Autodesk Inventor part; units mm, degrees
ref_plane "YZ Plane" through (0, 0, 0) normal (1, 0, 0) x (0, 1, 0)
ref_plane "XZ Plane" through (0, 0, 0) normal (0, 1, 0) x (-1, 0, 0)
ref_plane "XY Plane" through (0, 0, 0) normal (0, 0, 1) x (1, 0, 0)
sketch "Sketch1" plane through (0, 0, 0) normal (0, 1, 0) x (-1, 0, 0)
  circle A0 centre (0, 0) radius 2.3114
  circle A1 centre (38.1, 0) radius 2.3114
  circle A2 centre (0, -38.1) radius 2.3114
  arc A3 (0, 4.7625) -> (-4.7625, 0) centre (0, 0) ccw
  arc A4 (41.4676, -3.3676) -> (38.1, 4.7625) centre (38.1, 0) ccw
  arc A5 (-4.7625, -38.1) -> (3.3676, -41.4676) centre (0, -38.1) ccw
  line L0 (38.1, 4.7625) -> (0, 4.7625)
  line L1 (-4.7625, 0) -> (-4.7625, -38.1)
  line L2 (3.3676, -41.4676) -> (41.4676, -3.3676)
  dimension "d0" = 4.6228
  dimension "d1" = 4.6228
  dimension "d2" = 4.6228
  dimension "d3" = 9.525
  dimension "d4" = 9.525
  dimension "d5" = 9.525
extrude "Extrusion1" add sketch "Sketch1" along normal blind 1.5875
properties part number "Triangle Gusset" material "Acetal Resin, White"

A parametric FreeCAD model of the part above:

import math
import FreeCAD as App
import Part
import Sketcher
Q = App.Units.Quantity

doc = App.newDocument("Part")
params = doc.addObject("Spreadsheet::Sheet", "Params")
for row, (alias, value) in enumerate([
    ("sketch1_diameter", "0.182 in"),
    ("sketch1_radius", "0.1875 in"),
    ("sketch1_width", "1.5 in"),
    ("pad1_length", "0.0625 in"),
], start=1):
    params.set(f"A{row}", alias)
    params.set(f"B{row}", "=" + value)
    params.setAlias(f"B{row}", alias)

body = doc.addObject("PartDesign::Body", "Body")

sketch1 = body.newObject("Sketcher::SketchObject", "Sketch")
sketch1.AttachmentSupport = (doc.getObject("XZ_Plane"), [""])
sketch1.MapMode = "FlatFace"
sketch1.addGeometry([
    Part.LineSegment(App.Vector(-38.1, 4.8, 0), App.Vector(0, 4.8, 0)),
    Part.ArcOfCircle(Part.Circle(App.Vector(0, 0, 0), App.Vector(0, 0, 1), 4.8), math.radians(0), math.radians(90)),
    Part.LineSegment(App.Vector(4.8, 0, 0), App.Vector(4.8, -38.1, 0)),
    Part.ArcOfCircle(Part.Circle(App.Vector(0, -38.1, 0), App.Vector(0, 0, 1), 4.8), math.radians(-135), math.radians(0)),
    Part.LineSegment(App.Vector(-3.4, -41.5, 0), App.Vector(-41.5, -3.4, 0)),
    Part.ArcOfCircle(Part.Circle(App.Vector(-38.1, 0, 0), App.Vector(0, 0, 1), 4.8), math.radians(90), math.radians(225)),
    Part.Circle(App.Vector(0, -38.1, 0), App.Vector(0, 0, 1), 2.3),
    Part.Circle(App.Vector(0, 0, 0), App.Vector(0, 0, 1), 2.3),
    Part.Circle(App.Vector(-38.1, 0, 0), App.Vector(0, 0, 1), 2.3),
], False)
sketch1.addConstraint([
    Sketcher.Constraint("Tangent", 0, 2, 1, 2),
    Sketcher.Constraint("Tangent", 1, 1, 2, 1),
    Sketcher.Constraint("Tangent", 2, 2, 3, 2),
    Sketcher.Constraint("Tangent", 3, 1, 4, 1),
    Sketcher.Constraint("Tangent", 4, 2, 5, 2),
    Sketcher.Constraint("Tangent", 5, 1, 0, 1),
    Sketcher.Constraint("Horizontal", 0),
    Sketcher.Constraint("Vertical", 2),
    Sketcher.Constraint("Coincident", 1, 3, -1, 1),
    Sketcher.Constraint("Coincident", 7, 3, -1, 1),
    Sketcher.Constraint("Coincident", 6, 3, 3, 3),
    Sketcher.Constraint("Coincident", 8, 3, 5, 3),
    Sketcher.Constraint("Equal", 1, 3),
    Sketcher.Constraint("Equal", 3, 5),
    Sketcher.Constraint("Equal", 6, 7),
    Sketcher.Constraint("Equal", 7, 8),
    Sketcher.Constraint("Equal", 0, 2),
    Sketcher.Constraint("Diameter", 6, Q("0.182 in")),
    Sketcher.Constraint("Radius", 1, Q("0.1875 in")),
    Sketcher.Constraint("DistanceX", 0, 1, 0, 2, Q("1.5 in")),
])
sketch1.setExpression("Constraints[17]", "Params.sketch1_diameter")
sketch1.setExpression("Constraints[18]", "Params.sketch1_radius")
sketch1.setExpression("Constraints[19]", "Params.sketch1_width")
pad1 = body.newObject("PartDesign::Pad", "Pad")
pad1.Profile = sketch1
pad1.setExpression("Length", "Params.pad1_length")
pad1.Reversed = True

doc.recompute()
